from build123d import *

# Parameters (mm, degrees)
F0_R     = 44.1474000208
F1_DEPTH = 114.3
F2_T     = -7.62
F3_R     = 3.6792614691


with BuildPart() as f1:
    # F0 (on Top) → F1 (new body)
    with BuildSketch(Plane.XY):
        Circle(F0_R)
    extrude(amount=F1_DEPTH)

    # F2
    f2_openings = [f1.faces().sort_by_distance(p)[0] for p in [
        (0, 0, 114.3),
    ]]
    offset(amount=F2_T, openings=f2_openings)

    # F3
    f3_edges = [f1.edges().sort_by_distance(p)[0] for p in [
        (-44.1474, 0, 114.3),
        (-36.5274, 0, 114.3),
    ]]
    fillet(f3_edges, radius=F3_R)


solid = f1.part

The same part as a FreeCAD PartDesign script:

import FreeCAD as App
import Part
import Sketcher
Q = App.Units.Quantity


def edges_at(feature, points):
    """Names of the edges that pass closest to the given points."""
    edges = feature.Shape.Edges
    near = lambda p: min(range(len(edges)), key=lambda i: edges[i].distToShape(Part.Vertex(*p))[0])
    return sorted({f"Edge{near(p) + 1}" for p in points})


def faces_at(feature, points):
    """Names of the faces that lie closest to the given points."""
    faces = feature.Shape.Faces
    near = lambda p: min(range(len(faces)), key=lambda i: faces[i].distToShape(Part.Vertex(*p))[0])
    return sorted({f"Face{near(p) + 1}" for p in points})

doc = App.newDocument("Part")
body = doc.addObject("PartDesign::Body", "Body")

# Sketch on XY plane
sketch1 = body.newObject("Sketcher::SketchObject", "Sketch")
sketch1.AttachmentSupport = (doc.getObject("XY_Plane"), [""])
sketch1.MapMode = "FlatFace"
sketch1.addGeometry(Part.Circle(App.Vector(0, 0, 0), App.Vector(0, 0, 1), 44), False)
sketch1.addConstraint(Sketcher.Constraint("Coincident", 0, 3, -1, 1))
sketch1.addConstraint(Sketcher.Constraint("Diameter", 0, 88.2948))
pad1 = body.newObject("PartDesign::Pad", "Pad")
pad1.Profile = sketch1
pad1.Length = Q("4.5 in")
doc.recompute()

thickness = body.newObject("PartDesign::Thickness", "Thickness")
thickness.Base = (pad1, faces_at(pad1, [(0, 0, 114.3)]))
thickness.Value = Q("0.3 in")
thickness.Reversed = True
thickness.Join = "Arc"
doc.recompute()

fillet = body.newObject("PartDesign::Fillet", "Fillet")
fillet.Base = (thickness, edges_at(thickness, [(-44.147, 0, 114.3), (-36.527, 0, 114.3)]))
fillet.Radius = 3.679261

doc.recompute()
